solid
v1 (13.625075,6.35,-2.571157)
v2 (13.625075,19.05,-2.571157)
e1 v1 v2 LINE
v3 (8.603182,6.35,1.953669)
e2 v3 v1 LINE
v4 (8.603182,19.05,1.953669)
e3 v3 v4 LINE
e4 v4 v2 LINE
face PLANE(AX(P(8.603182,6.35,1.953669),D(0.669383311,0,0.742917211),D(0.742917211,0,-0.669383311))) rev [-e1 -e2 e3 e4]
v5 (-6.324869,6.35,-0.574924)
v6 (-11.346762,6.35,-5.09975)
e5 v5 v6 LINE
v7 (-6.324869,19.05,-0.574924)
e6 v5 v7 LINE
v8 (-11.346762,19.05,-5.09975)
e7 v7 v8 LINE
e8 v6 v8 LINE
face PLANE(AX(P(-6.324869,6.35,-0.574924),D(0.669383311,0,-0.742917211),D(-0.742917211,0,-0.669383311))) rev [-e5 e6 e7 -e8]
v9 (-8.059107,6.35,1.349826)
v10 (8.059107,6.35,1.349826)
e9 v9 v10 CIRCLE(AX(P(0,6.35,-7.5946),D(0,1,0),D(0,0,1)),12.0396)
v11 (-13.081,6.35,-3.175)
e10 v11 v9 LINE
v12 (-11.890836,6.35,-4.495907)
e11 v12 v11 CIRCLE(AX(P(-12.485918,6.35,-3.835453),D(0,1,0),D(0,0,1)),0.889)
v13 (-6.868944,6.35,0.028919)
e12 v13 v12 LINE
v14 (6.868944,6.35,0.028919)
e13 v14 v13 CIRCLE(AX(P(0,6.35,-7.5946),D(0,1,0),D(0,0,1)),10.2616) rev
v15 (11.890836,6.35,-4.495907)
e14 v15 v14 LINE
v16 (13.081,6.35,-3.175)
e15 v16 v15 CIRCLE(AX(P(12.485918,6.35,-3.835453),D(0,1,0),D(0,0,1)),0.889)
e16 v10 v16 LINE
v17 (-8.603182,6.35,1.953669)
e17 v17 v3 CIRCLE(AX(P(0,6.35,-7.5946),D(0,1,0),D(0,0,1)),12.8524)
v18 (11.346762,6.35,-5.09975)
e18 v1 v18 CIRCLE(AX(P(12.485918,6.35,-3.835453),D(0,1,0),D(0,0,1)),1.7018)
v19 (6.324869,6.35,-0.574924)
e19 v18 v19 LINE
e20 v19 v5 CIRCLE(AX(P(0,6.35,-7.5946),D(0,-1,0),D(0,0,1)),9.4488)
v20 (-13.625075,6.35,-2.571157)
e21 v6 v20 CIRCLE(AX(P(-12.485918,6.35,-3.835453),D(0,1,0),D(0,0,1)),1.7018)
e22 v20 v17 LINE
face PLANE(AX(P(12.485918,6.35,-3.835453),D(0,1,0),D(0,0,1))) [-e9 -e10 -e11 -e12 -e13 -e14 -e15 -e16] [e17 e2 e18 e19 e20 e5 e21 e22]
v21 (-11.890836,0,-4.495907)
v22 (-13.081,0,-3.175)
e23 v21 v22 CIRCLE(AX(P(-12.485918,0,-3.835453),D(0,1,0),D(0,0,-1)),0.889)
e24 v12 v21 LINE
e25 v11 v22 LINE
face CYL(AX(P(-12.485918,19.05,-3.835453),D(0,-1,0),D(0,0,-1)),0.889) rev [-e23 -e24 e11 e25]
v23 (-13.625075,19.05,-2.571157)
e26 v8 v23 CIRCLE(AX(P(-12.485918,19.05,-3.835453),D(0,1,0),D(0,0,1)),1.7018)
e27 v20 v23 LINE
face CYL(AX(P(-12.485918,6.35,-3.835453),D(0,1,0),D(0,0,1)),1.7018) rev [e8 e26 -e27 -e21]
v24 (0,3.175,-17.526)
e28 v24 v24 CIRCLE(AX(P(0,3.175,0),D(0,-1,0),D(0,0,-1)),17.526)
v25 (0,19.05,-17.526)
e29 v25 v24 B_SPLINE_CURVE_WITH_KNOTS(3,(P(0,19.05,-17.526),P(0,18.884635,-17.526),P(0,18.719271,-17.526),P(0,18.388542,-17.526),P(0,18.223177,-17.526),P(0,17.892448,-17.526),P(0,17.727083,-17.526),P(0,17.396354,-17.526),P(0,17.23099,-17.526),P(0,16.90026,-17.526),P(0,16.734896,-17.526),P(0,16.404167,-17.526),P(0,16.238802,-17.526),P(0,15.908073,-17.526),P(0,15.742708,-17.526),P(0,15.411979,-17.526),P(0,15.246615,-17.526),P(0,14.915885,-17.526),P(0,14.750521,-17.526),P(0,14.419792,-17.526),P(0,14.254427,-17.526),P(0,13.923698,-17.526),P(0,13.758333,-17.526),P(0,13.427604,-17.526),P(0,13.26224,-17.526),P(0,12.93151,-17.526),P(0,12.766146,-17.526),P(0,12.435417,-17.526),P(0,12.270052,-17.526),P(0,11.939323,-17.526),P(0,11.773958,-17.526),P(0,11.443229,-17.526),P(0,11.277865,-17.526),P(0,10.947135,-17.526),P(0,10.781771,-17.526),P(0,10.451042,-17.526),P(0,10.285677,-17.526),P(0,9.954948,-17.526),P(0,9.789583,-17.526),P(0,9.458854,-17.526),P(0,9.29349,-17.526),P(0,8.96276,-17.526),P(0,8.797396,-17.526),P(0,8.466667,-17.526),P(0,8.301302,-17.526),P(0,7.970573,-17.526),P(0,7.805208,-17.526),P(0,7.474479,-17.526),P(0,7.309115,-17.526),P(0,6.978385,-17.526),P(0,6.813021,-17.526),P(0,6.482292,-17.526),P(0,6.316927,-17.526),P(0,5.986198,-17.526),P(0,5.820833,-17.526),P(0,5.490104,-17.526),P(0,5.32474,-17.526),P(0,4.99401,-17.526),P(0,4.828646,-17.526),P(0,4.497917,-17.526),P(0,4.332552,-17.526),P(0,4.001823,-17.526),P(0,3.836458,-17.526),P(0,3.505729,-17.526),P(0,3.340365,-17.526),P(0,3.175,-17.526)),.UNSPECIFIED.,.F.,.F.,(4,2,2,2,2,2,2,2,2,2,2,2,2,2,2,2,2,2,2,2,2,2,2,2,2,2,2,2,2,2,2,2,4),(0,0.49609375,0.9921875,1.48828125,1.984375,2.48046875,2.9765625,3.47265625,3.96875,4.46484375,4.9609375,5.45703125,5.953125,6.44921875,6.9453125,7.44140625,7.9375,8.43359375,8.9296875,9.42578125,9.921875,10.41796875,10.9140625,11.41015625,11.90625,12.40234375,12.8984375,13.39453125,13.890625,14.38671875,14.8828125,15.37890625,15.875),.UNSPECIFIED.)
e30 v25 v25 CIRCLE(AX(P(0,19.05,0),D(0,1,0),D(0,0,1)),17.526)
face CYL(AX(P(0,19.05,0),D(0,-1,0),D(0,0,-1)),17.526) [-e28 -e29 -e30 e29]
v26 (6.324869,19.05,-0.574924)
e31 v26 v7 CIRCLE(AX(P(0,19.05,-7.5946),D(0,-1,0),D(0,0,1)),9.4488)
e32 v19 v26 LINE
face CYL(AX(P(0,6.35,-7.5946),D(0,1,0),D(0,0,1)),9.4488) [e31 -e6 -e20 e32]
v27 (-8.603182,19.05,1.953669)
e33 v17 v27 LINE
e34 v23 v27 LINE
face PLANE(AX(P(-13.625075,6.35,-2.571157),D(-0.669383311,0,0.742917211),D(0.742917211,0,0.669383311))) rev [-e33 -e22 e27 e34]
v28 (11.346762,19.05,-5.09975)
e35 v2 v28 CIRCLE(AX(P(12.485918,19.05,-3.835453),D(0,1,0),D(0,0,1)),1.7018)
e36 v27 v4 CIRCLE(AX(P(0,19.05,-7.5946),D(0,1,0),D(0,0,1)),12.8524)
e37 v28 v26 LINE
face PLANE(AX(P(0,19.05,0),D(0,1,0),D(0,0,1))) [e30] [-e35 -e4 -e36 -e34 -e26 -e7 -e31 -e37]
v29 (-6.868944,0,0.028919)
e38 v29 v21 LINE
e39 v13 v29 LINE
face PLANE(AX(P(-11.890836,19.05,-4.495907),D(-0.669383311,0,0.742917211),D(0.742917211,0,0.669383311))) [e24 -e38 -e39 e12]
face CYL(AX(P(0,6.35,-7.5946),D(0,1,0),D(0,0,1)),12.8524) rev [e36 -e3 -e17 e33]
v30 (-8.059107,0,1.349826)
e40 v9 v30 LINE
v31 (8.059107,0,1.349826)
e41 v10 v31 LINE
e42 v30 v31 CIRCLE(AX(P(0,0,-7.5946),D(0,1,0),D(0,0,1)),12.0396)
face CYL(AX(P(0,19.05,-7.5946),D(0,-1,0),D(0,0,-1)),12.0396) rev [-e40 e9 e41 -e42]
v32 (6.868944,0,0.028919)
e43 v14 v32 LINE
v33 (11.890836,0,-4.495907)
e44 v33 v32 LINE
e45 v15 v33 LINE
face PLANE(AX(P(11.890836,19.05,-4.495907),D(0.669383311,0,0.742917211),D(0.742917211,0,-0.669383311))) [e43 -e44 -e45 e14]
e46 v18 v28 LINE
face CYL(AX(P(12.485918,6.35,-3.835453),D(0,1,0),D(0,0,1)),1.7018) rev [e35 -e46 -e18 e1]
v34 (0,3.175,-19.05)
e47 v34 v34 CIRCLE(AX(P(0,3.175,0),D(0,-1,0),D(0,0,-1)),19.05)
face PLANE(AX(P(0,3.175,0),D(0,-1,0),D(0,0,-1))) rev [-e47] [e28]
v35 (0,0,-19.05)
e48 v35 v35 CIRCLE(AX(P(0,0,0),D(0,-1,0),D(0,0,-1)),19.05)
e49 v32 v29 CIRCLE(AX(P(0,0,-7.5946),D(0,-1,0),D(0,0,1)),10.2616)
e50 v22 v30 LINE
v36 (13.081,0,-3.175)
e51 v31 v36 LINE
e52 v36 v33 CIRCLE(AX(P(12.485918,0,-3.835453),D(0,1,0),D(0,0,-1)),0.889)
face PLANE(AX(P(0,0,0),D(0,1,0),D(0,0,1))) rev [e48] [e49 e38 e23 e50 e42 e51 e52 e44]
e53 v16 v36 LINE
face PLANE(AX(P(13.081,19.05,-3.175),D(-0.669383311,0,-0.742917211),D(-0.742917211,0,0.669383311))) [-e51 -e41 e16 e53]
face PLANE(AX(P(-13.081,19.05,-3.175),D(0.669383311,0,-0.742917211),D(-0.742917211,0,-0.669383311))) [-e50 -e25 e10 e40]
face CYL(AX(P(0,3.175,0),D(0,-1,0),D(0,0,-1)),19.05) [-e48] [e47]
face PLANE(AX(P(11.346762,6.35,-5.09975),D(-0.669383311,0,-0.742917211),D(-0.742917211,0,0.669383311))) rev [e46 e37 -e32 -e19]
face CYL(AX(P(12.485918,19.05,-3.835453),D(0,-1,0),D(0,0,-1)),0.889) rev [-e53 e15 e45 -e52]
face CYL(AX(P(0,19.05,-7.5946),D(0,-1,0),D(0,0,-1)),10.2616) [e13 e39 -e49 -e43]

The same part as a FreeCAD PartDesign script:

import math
import FreeCAD as App
import Part
import Sketcher
from FreeCAD import Vector
Q = App.Units.Quantity

doc = App.newDocument("Part")
body = doc.addObject("PartDesign::Body", "Body")

sketch1 = doc.addObject("Sketcher::SketchObject", "Sketch")
body.addObject(sketch1)
sketch1.AttachmentSupport = (doc.XZ_Plane, [""])
sketch1.MapMode = "FlatFace"
sketch1.addGeometry([
    Part.Circle(Vector(0, 0, 0), Vector(0, 0, 1), 17.526),
    Part.LineSegment(Vector(-8.059107, 1.349826, 0), Vector(-13.081, -3.175, 0)),
    Part.ArcOfCircle(Part.Circle(Vector(-12.485918, -3.835453, 0), Vector(0, 0, 1), 0.889), math.radians(132.019486), math.radians(312.019486)),
    Part.LineSegment(Vector(-11.890836, -4.495907, 0), Vector(-6.868944, 0.028919, 0)),
    Part.ArcOfCircle(Part.Circle(Vector(0, -7.5946, 0), Vector(0, 0, 1), 10.2616), math.radians(47.980514), math.radians(132.019486)),
    Part.LineSegment(Vector(6.868944, 0.028919, 0), Vector(11.890836, -4.495907, 0)),
    Part.ArcOfCircle(Part.Circle(Vector(12.485918, -3.835453, 0), Vector(0, 0, 1), 0.889), math.radians(-132.019486), math.radians(47.980514)),
    Part.LineSegment(Vector(13.081, -3.175, 0), Vector(8.059107, 1.349826, 0)),
    Part.ArcOfCircle(Part.Circle(Vector(0, -7.5946, 0), Vector(0, 0, 1), 12.0396), math.radians(47.980514), math.radians(132.019486)),
], False)
sketch1.addConstraint([
    Sketcher.Constraint("Tangent", 1, 2, 2, 1),
    Sketcher.Constraint("Tangent", 2, 2, 3, 1),
    Sketcher.Constraint("Tangent", 3, 2, 4, 2),
    Sketcher.Constraint("Tangent", 4, 1, 5, 1),
    Sketcher.Constraint("Tangent", 5, 2, 6, 1),
    Sketcher.Constraint("Tangent", 6, 2, 7, 1),
    Sketcher.Constraint("Tangent", 7, 2, 8, 1),
    Sketcher.Constraint("Tangent", 8, 2, 1, 1),
    Sketcher.Constraint("Coincident", 0, 3, -1, 1),
    Sketcher.Constraint("Coincident", 8, 3, 4, 3),
    Sketcher.Constraint("Equal", 2, 6),
    Sketcher.Constraint("Symmetric", 2, 3, 6, 3, -2),
    Sketcher.Constraint("PointOnObject", 4, 3, -2),
    Sketcher.Constraint("Parallel", 1, 3),
    Sketcher.Constraint("Diameter", 0, Q("1.38 in")),
    Sketcher.Constraint("Radius", 2, Q("0.035 in")),
    Sketcher.Constraint("Radius", 4, Q("0.404 in")),
    Sketcher.Constraint("DistanceY", 4, 3, -1, 1, Q("0.299 in")),
    Sketcher.Constraint("DistanceX", 1, 2, -1, 1, Q("0.515 in")),
    Sketcher.Constraint("DistanceY", 1, 2, -1, 1, Q("0.125 in")),
])
pad1 = doc.addObject("PartDesign::Pad", "Pad")
body.addObject(pad1)
pad1.Profile = sketch1
pad1.Length = Q("0.75 in")
pad1.Reversed = True

sketch2 = doc.addObject("Sketcher::SketchObject", "Sketch001")
body.addObject(sketch2)
sketch2.AttachmentSupport = (doc.XZ_Plane, [""])
sketch2.MapMode = "FlatFace"
sketch2.addGeometry([
    Part.Circle(Vector(0, 0, 0), Vector(0, 0, 1), 19.05),
    Part.ArcOfCircle(Part.Circle(Vector(-12.485918, -3.835453, 0), Vector(0, 0, 1), 0.889), math.radians(132.019486), math.radians(312.019486)),
    Part.LineSegment(Vector(-13.081, -3.175, 0), Vector(-8.059107, 1.349826, 0)),
    Part.ArcOfCircle(Part.Circle(Vector(0, -7.5946, 0), Vector(0, 0, 1), 12.0396), math.radians(47.980514), math.radians(132.019486)),
    Part.LineSegment(Vector(8.059107, 1.349826, 0), Vector(13.081, -3.175, 0)),
    Part.ArcOfCircle(Part.Circle(Vector(12.485918, -3.835453, 0), Vector(0, 0, 1), 0.889), math.radians(-132.019486), math.radians(47.980514)),
    Part.LineSegment(Vector(11.890836, -4.495907, 0), Vector(6.868944, 0.028919, 0)),
    Part.ArcOfCircle(Part.Circle(Vector(0, -7.5946, 0), Vector(0, 0, 1), 10.2616), math.radians(47.980514), math.radians(132.019486)),
    Part.LineSegment(Vector(-6.868944, 0.028919, 0), Vector(-11.890836, -4.495907, 0)),
], False)
sketch2.addConstraint([
    Sketcher.Constraint("Tangent", 1, 1, 2, 1),
    Sketcher.Constraint("Tangent", 2, 2, 3, 2),
    Sketcher.Constraint("Tangent", 3, 1, 4, 1),
    Sketcher.Constraint("Tangent", 4, 2, 5, 2),
    Sketcher.Constraint("Tangent", 5, 1, 6, 1),
    Sketcher.Constraint("Tangent", 6, 2, 7, 1),
    Sketcher.Constraint("Tangent", 7, 2, 8, 1),
    Sketcher.Constraint("Tangent", 8, 2, 1, 2),
    Sketcher.Constraint("Coincident", 0, 3, -1, 1),
    Sketcher.Constraint("Coincident", 7, 3, 3, 3),
    Sketcher.Constraint("Equal", 1, 5),
    Sketcher.Constraint("Symmetric", 1, 3, 5, 3, -2),
    Sketcher.Constraint("PointOnObject", 3, 3, -2),
    Sketcher.Constraint("Parallel", 4, 6),
    Sketcher.Constraint("Diameter", 0, Q("1.5 in")),
    Sketcher.Constraint("Radius", 1, Q("0.035 in")),
    Sketcher.Constraint("Radius", 3, Q("0.474 in")),
    Sketcher.Constraint("DistanceY", 3, 3, -1, 1, Q("0.299 in")),
    Sketcher.Constraint("DistanceX", 1, 1, -1, 1, Q("0.515 in")),
    Sketcher.Constraint("DistanceY", 1, 1, -1, 1, Q("0.125 in")),
])
pad2 = doc.addObject("PartDesign::Pad", "Pad001")
body.addObject(pad2)
pad2.Profile = sketch2
pad2.Length = Q("0.125 in")
pad2.Reversed = True

sketch3 = doc.addObject("Sketcher::SketchObject", "Sketch002")
body.addObject(sketch3)
sketch3.AttachmentSupport = (doc.XZ_Plane, [""])
sketch3.MapMode = "FlatFace"
sketch3.AttachmentOffset = App.Placement(Vector(0, 0, -0.75 * 25.4), App.Rotation())
sketch3.addGeometry([
    Part.LineSegment(Vector(8.603182, 1.953669, 0), Vector(13.625075, -2.571157, 0)),
    Part.ArcOfCircle(Part.Circle(Vector(12.485918, -3.835453, 0), Vector(0, 0, 1), 1.7018), math.radians(-132.019486), math.radians(47.980514)),
    Part.LineSegment(Vector(11.346762, -5.09975, 0), Vector(6.324869, -0.574924, 0)),
    Part.ArcOfCircle(Part.Circle(Vector(0, -7.5946, 0), Vector(0, 0, 1), 9.4488), math.radians(47.980514), math.radians(132.019486)),
    Part.LineSegment(Vector(-6.324869, -0.574924, 0), Vector(-11.346762, -5.09975, 0)),
    Part.ArcOfCircle(Part.Circle(Vector(-12.485918, -3.835453, 0), Vector(0, 0, 1), 1.7018), math.radians(132.019486), math.radians(312.019486)),
    Part.LineSegment(Vector(-13.625075, -2.571157, 0), Vector(-8.603182, 1.953669, 0)),
    Part.ArcOfCircle(Part.Circle(Vector(0, -7.5946, 0), Vector(0, 0, 1), 12.8524), math.radians(47.980514), math.radians(132.019486)),
], False)
sketch3.addConstraint([
    Sketcher.Constraint("Tangent", 0, 2, 1, 2),
    Sketcher.Constraint("Tangent", 1, 1, 2, 1),
    Sketcher.Constraint("Tangent", 2, 2, 3, 1),
    Sketcher.Constraint("Tangent", 3, 2, 4, 1),
    Sketcher.Constraint("Tangent", 4, 2, 5, 2),
    Sketcher.Constraint("Tangent", 5, 1, 6, 1),
    Sketcher.Constraint("Tangent", 6, 2, 7, 2),
    Sketcher.Constraint("Tangent", 7, 1, 0, 1),
    Sketcher.Constraint("Coincident", 7, 3, 3, 3),
    Sketcher.Constraint("Equal", 1, 5),
    Sketcher.Constraint("Symmetric", 1, 3, 5, 3, -2),
    Sketcher.Constraint("PointOnObject", 3, 3, -2),
    Sketcher.Constraint("Parallel", 0, 2),
    Sketcher.Constraint("Radius", 1, Q("0.067 in")),
    Sketcher.Constraint("Radius", 3, Q("0.372 in")),
    Sketcher.Constraint("DistanceY", 3, 3, -1, 1, Q("0.299 in")),
    Sketcher.Constraint("DistanceX", -1, 1, 1, 3, 12.485918),
    Sketcher.Constraint("DistanceX", -1, 1, 1, 1, 11.346762),
])
pocket1 = doc.addObject("PartDesign::Pocket", "Pocket")
body.addObject(pocket1)
pocket1.Profile = sketch3
pocket1.Length = Q("0.5 in")
pocket1.Reversed = True

doc.recompute()
